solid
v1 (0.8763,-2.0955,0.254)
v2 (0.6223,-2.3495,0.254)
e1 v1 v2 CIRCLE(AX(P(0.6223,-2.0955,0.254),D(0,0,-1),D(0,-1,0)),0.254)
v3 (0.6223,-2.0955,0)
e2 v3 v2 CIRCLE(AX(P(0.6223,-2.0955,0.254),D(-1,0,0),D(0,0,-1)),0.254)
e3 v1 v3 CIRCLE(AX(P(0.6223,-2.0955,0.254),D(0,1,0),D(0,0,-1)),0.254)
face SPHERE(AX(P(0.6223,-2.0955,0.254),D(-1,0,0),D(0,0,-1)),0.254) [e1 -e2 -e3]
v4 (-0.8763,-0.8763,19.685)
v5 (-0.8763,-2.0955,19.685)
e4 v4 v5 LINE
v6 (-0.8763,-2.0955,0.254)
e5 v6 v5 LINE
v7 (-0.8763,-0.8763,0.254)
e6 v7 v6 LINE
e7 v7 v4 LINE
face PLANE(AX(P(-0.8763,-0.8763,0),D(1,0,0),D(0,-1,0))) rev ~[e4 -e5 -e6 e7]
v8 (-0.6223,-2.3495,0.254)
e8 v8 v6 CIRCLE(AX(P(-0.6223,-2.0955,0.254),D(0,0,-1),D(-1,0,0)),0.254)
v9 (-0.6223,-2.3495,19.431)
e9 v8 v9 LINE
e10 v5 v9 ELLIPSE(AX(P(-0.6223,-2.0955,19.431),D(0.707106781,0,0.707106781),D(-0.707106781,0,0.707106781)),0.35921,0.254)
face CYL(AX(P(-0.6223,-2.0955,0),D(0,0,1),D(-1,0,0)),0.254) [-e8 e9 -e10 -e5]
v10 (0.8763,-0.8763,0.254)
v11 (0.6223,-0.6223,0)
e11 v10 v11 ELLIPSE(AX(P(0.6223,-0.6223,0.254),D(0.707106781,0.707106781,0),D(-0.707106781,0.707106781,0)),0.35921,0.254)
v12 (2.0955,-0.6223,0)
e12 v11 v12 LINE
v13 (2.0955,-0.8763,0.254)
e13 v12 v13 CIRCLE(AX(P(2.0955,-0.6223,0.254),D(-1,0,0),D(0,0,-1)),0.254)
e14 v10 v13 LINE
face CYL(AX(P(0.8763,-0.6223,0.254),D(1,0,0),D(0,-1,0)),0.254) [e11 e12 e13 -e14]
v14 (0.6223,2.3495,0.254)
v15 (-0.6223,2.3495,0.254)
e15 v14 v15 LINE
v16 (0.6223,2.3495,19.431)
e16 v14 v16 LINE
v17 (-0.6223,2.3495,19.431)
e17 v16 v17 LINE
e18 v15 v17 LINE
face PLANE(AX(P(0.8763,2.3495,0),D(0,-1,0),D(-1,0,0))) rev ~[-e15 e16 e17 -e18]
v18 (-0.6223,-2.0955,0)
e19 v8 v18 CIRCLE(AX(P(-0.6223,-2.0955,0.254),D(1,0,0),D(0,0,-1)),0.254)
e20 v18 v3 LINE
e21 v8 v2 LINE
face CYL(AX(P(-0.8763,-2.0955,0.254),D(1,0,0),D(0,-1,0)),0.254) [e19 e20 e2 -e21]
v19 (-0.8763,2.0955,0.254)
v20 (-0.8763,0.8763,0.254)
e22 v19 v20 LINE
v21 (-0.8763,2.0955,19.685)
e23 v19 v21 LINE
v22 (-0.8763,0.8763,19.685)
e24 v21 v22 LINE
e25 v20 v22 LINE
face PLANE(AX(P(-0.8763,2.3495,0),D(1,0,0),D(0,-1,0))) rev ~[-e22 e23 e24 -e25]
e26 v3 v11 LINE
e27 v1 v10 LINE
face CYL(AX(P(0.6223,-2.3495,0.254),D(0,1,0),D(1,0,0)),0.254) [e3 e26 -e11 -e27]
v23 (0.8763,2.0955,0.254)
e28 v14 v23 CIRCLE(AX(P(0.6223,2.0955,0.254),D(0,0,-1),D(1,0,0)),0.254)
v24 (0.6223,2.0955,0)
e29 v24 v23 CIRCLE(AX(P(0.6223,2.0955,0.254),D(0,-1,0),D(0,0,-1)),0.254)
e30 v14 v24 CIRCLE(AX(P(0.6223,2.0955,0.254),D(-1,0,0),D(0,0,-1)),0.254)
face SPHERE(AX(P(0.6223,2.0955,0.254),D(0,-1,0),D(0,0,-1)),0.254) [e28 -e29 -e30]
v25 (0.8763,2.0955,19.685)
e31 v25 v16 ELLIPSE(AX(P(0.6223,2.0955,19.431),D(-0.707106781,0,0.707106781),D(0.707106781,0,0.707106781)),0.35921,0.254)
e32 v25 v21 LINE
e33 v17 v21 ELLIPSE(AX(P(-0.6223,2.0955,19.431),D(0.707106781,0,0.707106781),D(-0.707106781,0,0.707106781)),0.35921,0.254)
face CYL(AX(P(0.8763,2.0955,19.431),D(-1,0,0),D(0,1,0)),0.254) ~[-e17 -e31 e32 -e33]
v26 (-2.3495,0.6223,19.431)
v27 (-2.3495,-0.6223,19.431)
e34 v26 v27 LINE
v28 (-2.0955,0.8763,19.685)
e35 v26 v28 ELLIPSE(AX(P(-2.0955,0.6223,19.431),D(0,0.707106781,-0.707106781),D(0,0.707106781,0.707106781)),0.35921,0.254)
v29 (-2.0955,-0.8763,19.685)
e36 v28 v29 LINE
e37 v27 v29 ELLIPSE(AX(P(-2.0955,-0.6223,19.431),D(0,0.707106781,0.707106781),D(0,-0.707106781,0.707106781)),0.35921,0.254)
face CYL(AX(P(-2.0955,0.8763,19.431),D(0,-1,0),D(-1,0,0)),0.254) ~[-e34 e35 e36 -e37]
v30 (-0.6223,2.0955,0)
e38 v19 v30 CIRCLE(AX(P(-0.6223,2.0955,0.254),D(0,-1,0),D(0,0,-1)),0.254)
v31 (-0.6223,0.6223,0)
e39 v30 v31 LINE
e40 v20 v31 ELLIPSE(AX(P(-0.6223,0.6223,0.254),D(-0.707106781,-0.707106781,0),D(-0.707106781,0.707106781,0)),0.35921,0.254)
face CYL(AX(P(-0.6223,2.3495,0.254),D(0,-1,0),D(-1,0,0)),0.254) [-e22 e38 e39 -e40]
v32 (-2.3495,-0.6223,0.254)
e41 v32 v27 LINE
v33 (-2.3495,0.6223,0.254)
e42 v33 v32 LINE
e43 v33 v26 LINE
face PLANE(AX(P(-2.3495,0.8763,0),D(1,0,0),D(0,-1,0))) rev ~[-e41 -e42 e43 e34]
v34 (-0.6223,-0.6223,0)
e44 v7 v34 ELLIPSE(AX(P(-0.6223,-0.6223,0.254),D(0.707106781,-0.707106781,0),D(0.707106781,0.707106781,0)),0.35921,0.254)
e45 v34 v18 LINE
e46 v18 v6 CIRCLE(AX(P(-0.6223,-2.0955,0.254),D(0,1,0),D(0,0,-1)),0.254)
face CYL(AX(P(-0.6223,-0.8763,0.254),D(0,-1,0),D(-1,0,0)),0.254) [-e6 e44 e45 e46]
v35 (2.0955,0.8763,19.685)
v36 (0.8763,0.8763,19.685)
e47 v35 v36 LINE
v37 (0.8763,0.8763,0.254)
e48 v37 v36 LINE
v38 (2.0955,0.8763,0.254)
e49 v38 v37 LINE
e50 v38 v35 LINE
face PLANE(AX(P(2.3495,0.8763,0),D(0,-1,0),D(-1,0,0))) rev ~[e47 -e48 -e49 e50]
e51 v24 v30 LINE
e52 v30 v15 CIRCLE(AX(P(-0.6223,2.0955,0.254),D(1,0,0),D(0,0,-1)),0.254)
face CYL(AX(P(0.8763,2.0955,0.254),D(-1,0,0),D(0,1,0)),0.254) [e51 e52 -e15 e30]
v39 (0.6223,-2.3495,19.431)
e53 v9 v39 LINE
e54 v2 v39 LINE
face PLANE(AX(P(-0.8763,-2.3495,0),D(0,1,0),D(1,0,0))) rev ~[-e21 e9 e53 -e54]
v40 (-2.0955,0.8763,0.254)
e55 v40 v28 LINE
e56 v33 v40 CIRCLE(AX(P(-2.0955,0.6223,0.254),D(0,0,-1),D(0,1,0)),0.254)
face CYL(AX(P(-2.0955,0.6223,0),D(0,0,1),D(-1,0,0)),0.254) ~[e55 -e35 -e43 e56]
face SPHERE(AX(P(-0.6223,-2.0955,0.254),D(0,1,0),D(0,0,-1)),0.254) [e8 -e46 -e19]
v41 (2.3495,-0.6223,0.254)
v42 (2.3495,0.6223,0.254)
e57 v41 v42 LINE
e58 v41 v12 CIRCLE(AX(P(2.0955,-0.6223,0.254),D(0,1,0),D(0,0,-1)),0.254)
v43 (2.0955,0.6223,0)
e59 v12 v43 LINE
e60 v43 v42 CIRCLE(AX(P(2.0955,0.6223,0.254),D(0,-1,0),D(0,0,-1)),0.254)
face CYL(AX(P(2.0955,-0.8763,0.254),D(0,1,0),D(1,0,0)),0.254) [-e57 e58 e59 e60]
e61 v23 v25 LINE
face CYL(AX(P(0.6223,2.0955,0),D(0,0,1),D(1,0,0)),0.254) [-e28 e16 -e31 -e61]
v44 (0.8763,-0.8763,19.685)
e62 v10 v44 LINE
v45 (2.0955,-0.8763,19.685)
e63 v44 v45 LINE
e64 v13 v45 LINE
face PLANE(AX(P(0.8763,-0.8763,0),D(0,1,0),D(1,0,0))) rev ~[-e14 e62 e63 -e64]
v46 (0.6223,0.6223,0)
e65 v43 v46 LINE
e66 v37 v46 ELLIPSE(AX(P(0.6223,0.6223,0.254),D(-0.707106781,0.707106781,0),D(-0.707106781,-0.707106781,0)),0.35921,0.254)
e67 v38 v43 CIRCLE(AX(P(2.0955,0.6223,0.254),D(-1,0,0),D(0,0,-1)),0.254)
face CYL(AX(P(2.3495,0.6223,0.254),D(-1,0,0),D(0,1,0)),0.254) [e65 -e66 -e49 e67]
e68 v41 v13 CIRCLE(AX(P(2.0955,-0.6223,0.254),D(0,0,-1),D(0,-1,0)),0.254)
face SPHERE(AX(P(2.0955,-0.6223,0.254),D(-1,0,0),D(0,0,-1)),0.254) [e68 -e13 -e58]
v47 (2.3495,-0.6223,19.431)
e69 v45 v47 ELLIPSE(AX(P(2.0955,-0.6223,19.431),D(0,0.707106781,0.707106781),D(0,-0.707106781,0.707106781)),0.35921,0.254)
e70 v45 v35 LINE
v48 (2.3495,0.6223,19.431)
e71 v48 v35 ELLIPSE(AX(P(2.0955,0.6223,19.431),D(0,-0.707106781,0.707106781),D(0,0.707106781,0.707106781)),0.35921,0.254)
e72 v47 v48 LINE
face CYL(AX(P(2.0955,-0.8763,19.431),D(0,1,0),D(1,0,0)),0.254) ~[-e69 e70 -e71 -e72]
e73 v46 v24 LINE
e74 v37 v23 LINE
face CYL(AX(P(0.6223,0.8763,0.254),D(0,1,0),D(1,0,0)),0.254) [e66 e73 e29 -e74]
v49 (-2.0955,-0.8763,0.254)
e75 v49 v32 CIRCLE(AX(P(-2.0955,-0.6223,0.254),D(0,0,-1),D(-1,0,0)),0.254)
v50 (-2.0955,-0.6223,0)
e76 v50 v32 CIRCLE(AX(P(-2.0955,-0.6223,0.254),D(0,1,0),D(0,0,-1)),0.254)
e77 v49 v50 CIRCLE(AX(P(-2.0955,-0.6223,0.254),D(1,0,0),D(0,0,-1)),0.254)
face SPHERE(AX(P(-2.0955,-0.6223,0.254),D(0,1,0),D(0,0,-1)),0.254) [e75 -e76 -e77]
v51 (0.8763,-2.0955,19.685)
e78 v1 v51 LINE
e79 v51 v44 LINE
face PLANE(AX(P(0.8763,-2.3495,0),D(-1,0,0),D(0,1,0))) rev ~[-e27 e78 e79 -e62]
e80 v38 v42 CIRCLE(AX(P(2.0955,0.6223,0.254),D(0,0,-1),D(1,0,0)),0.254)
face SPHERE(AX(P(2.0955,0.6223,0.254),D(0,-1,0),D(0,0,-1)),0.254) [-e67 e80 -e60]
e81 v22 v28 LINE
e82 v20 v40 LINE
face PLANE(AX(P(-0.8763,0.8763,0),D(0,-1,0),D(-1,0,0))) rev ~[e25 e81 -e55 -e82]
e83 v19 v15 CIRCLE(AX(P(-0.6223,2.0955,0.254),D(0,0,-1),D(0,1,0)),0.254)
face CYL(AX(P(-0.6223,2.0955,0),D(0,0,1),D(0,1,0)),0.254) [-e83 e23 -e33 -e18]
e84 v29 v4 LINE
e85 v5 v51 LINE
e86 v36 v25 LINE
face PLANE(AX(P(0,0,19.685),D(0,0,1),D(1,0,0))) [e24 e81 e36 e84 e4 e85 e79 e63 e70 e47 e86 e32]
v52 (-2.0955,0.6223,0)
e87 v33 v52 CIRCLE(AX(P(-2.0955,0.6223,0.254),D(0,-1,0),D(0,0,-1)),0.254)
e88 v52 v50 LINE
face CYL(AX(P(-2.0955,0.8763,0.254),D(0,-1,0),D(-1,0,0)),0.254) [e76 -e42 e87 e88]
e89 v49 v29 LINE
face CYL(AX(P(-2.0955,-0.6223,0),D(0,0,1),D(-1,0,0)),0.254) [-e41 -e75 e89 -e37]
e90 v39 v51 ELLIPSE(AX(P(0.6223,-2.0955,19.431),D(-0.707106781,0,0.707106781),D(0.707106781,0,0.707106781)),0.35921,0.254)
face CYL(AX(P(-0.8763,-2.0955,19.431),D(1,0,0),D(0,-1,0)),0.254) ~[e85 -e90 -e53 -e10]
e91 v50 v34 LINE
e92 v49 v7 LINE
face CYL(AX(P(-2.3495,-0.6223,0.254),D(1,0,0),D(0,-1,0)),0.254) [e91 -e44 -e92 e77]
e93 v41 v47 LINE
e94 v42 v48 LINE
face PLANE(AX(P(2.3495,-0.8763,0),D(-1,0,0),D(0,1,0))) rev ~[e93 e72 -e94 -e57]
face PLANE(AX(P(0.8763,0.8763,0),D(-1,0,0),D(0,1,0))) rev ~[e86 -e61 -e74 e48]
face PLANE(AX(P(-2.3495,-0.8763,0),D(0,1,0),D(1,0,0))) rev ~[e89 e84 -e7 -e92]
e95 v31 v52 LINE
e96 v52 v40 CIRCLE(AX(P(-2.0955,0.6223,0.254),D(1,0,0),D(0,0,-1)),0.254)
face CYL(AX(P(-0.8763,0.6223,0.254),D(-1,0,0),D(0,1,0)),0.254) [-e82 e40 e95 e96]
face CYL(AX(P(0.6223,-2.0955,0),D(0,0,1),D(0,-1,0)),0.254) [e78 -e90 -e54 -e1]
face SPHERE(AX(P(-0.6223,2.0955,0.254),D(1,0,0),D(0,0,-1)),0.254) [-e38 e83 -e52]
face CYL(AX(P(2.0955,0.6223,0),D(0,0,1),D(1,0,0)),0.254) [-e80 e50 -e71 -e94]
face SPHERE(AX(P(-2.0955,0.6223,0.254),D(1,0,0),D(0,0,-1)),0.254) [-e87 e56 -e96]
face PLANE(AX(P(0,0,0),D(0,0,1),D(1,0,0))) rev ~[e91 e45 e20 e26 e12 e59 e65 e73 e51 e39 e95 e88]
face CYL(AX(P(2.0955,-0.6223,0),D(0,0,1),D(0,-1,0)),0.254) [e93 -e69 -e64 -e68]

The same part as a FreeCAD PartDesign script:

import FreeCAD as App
import Part
import Sketcher
Q = App.Units.Quantity


def edges_at(feature, points):
    """Names of the edges that pass closest to the given points."""
    edges = feature.Shape.Edges
    near = lambda p: min(range(len(edges)), key=lambda i: edges[i].distToShape(Part.Vertex(*p))[0])
    return sorted({f"Edge{near(p) + 1}" for p in points})

doc = App.newDocument("Part")
body = doc.addObject("PartDesign::Body", "Body")

sketch1 = body.newObject("Sketcher::SketchObject", "Sketch")
sketch1.AttachmentSupport = (doc.getObject("XY_Plane"), [""])
sketch1.MapMode = "FlatFace"
sketch1.addGeometry([
    Part.LineSegment(App.Vector(-2.3, 0.9, 0), App.Vector(-2.3, -0.9, 0)),
    Part.LineSegment(App.Vector(-2.3, -0.9, 0), App.Vector(-0.9, -0.9, 0)),
    Part.LineSegment(App.Vector(-0.9, -0.9, 0), App.Vector(-0.9, -2.3, 0)),
    Part.LineSegment(App.Vector(-0.9, -2.3, 0), App.Vector(0.9, -2.3, 0)),
    Part.LineSegment(App.Vector(0.9, -2.3, 0), App.Vector(0.9, -0.9, 0)),
    Part.LineSegment(App.Vector(0.9, -0.9, 0), App.Vector(2.3, -0.9, 0)),
    Part.LineSegment(App.Vector(2.3, -0.9, 0), App.Vector(2.3, 0.9, 0)),
    Part.LineSegment(App.Vector(2.3, 0.9, 0), App.Vector(0.9, 0.9, 0)),
    Part.LineSegment(App.Vector(0.9, 0.9, 0), App.Vector(0.9, 2.3, 0)),
    Part.LineSegment(App.Vector(0.9, 2.3, 0), App.Vector(-0.9, 2.3, 0)),
    Part.LineSegment(App.Vector(-0.9, 2.3, 0), App.Vector(-0.9, 0.9, 0)),
    Part.LineSegment(App.Vector(-0.9, 0.9, 0), App.Vector(-2.3, 0.9, 0)),
], False)
sketch1.addConstraint([
    Sketcher.Constraint("Coincident", 0, 2, 1, 1),
    Sketcher.Constraint("Coincident", 1, 2, 2, 1),
    Sketcher.Constraint("Coincident", 2, 2, 3, 1),
    Sketcher.Constraint("Coincident", 3, 2, 4, 1),
    Sketcher.Constraint("Coincident", 4, 2, 5, 1),
    Sketcher.Constraint("Coincident", 5, 2, 6, 1),
    Sketcher.Constraint("Coincident", 6, 2, 7, 1),
    Sketcher.Constraint("Coincident", 7, 2, 8, 1),
    Sketcher.Constraint("Coincident", 8, 2, 9, 1),
    Sketcher.Constraint("Coincident", 9, 2, 10, 1),
    Sketcher.Constraint("Coincident", 10, 2, 11, 1),
    Sketcher.Constraint("Coincident", 11, 2, 0, 1),
    Sketcher.Constraint("Vertical", 0),
    Sketcher.Constraint("Horizontal", 1),
    Sketcher.Constraint("Vertical", 2),
    Sketcher.Constraint("Horizontal", 3),
    Sketcher.Constraint("Vertical", 4),
    Sketcher.Constraint("Horizontal", 5),
    Sketcher.Constraint("Vertical", 6),
    Sketcher.Constraint("Horizontal", 7),
    Sketcher.Constraint("Vertical", 8),
    Sketcher.Constraint("Horizontal", 9),
    Sketcher.Constraint("Vertical", 10),
    Sketcher.Constraint("Horizontal", 11),
    Sketcher.Constraint("Symmetric", 0, 2, 6, 2, -1, 1),
    Sketcher.Constraint("Symmetric", 2, 2, 8, 2, -1, 1),
    Sketcher.Constraint("Symmetric", 4, 2, 10, 2, -1, 1),
    Sketcher.Constraint("Symmetric", 1, 2, 4, 2, -2),
    Sketcher.Constraint("Equal", 9, 0),
    Sketcher.Constraint("Equal", 11, 2),
    Sketcher.Constraint("DistanceX", 1, 1, 1, 2, Q("0.058 in")),
    Sketcher.Constraint("DistanceX", 3, 1, 3, 2, Q("0.069 in")),
])
pad1 = body.newObject("PartDesign::Pad", "Pad")
pad1.Profile = sketch1
pad1.Length = Q("0.775 in")
doc.recompute()

fillet = body.newObject("PartDesign::Fillet", "Fillet")
fillet.Base = (pad1, edges_at(pad1, [
    (-1.613, 0.876, 0),
    (-2.349, 0, 0),
    (-1.613, -0.876, 0),
    (-0.876, -1.613, 0),
    (0, -2.349, 0),
    (0.876, -1.613, 0),
    (1.613, -0.876, 0),
    (2.349, 0, 0),
    (1.613, 0.876, 0),
    (0.876, 1.613, 0),
    (0, 2.349, 0),
    (-0.876, 1.613, 0),
    (-2.349, 0.876, 9.842),
    (-2.349, 0, 19.685),
    (-2.349, -0.876, 9.842),
    (0.876, 2.349, 9.842),
    (0, 2.349, 19.685),
    (-0.876, 2.349, 9.842),
    (2.349, -0.876, 9.842),
    (2.349, 0, 19.685),
    (2.349, 0.876, 9.842),
    (-0.876, -2.349, 9.842),
    (0, -2.349, 19.685),
    (0.876, -2.349, 9.842),
]))
fillet.Radius = Q("0.01 in")

doc.recompute()
